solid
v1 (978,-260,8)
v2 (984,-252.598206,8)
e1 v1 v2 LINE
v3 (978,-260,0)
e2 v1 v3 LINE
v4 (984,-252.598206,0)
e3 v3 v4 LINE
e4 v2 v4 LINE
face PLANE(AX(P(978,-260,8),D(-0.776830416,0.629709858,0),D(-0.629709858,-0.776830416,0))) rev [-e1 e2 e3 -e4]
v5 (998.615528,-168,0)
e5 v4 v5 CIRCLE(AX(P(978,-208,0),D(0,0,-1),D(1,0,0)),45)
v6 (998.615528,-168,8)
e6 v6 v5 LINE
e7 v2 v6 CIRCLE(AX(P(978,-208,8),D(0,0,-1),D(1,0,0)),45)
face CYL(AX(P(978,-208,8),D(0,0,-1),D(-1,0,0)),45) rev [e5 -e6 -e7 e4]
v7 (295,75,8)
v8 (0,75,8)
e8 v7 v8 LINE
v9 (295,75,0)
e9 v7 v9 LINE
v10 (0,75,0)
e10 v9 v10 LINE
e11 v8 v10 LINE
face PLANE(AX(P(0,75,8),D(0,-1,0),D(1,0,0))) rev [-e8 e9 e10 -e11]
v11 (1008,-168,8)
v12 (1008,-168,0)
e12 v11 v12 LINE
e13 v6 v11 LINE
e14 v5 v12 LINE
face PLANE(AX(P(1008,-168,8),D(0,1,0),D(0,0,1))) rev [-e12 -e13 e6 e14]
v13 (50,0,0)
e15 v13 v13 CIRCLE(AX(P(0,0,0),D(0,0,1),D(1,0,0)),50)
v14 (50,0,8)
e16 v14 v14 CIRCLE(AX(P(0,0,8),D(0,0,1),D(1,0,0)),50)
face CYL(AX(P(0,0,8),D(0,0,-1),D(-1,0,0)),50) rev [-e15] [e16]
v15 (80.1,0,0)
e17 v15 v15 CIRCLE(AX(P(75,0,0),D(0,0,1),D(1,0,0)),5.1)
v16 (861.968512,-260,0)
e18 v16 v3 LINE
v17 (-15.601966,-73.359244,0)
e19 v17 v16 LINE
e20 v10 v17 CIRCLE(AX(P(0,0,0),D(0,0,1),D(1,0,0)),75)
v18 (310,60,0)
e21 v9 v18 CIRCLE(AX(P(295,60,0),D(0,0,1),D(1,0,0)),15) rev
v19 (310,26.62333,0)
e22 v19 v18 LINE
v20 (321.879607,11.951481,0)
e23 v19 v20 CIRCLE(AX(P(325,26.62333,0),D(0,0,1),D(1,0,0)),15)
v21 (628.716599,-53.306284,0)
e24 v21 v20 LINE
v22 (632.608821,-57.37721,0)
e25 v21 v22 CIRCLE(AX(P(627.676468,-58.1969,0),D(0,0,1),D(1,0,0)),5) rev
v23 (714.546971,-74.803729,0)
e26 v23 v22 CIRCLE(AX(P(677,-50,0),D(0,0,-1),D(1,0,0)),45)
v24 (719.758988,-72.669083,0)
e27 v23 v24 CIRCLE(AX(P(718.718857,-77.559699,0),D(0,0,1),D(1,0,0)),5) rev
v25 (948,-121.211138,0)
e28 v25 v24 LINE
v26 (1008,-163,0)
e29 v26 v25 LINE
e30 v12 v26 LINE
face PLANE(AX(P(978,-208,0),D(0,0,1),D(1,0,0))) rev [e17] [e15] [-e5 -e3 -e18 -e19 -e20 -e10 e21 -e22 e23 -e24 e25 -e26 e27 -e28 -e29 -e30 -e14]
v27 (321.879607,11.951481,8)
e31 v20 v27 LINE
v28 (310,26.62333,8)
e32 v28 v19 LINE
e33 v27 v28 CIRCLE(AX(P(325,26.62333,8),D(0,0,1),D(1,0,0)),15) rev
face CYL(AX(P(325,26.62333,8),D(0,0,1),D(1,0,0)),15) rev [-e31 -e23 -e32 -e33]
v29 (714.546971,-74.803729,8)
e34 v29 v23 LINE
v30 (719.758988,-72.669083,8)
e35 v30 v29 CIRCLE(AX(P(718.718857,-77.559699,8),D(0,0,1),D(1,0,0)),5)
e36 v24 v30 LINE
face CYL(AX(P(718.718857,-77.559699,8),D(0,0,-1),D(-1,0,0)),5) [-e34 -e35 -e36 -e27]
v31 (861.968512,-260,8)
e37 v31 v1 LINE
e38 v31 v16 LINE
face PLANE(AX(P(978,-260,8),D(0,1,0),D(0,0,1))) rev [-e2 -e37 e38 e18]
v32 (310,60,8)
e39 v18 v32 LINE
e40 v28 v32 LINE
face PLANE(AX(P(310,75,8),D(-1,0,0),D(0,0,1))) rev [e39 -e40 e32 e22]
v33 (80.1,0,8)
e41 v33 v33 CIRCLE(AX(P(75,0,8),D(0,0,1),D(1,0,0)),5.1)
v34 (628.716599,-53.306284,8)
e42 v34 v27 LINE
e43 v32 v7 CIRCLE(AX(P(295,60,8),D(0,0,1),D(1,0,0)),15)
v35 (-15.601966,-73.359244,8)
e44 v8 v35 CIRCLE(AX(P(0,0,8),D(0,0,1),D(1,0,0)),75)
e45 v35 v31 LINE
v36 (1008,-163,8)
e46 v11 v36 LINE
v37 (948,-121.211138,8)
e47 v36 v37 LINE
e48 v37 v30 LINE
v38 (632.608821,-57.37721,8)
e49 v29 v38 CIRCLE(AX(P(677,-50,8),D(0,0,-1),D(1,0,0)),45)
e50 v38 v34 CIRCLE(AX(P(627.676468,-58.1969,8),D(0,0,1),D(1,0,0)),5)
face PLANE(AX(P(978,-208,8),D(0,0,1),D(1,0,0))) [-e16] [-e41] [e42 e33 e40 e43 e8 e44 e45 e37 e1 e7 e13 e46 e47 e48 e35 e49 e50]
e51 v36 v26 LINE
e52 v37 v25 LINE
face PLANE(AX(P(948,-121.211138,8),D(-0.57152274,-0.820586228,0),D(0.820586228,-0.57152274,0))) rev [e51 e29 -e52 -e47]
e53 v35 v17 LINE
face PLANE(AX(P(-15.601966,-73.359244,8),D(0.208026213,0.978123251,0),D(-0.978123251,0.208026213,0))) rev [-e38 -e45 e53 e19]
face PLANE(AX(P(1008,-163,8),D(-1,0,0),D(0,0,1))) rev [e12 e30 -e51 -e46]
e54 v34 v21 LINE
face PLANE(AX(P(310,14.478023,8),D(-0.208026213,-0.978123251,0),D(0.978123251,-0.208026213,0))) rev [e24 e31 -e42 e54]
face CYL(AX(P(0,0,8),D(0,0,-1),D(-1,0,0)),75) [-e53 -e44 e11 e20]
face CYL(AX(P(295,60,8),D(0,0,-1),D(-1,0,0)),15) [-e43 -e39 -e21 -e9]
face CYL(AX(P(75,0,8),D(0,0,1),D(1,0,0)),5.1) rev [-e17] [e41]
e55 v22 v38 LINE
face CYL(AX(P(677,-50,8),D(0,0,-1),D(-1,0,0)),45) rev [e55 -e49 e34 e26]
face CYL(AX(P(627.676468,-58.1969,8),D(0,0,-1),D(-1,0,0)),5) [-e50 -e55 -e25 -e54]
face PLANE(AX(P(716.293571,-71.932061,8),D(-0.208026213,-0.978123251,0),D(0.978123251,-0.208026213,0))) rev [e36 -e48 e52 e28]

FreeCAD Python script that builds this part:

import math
import FreeCAD as App
import Part
import Sketcher

V = App.Vector
Q = App.Units.Quantity


def edges_at(feature, points):
    """Names of the edges that pass closest to the given points."""
    edges = feature.Shape.Edges
    near = lambda p: min(range(len(edges)), key=lambda i: edges[i].distToShape(Part.Vertex(*p))[0])
    return sorted({f"Edge{near(p) + 1}" for p in points})

doc = App.newDocument("Part")
body = doc.addObject("PartDesign::Body", "Body")

sketch1 = body.newObject("Sketcher::SketchObject", "Sketch")
sketch1.AttachmentSupport = (doc.getObject("XY_Plane"), [""])
sketch1.MapMode = "FlatFace"
sketch1.addGeometry([
    Part.LineSegment(V(310, 75, 0), V(0, 75, 0)),
    Part.ArcOfCircle(Part.Circle(V(0, 0, 0), V(0, 0, 1), 75), math.radians(90), math.radians(257.993292)),
    Part.LineSegment(V(-15.601966, -73.359244, 0), V(861.968512, -260, 0)),
    Part.LineSegment(V(861.968512, -260, 0), V(978, -260, 0)),
    Part.LineSegment(V(978, -260, 0), V(984, -252.598206, 0)),
    Part.ArcOfCircle(Part.Circle(V(978, -208, 0), V(0, 0, 1), 45), math.radians(62.733956), math.radians(277.662256)),
    Part.LineSegment(V(998.615528, -168, 0), V(1008, -168, 0)),
    Part.LineSegment(V(1008, -168, 0), V(1008, -163, 0)),
    Part.LineSegment(V(1008, -163, 0), V(948, -121.211138, 0)),
    Part.LineSegment(V(948, -121.211138, 0), V(716.293571, -71.932061, 0)),
    Part.ArcOfCircle(Part.Circle(V(677, -50, 0), V(0, 0, 1), 45), math.radians(-174.844951), math.radians(-29.168465)),
    Part.LineSegment(V(632.182016, -54.043305, 0), V(310, 14.478023, 0)),
    Part.LineSegment(V(310, 14.478023, 0), V(310, 75, 0)),
    Part.Circle(V(0, 0, 0), V(0, 0, 1), 50),
], False)
sketch1.addConstraint([
    Sketcher.Constraint("Tangent", 0, 2, 1, 1),
    Sketcher.Constraint("Tangent", 1, 2, 2, 1),
    Sketcher.Constraint("Coincident", 2, 2, 3, 1),
    Sketcher.Constraint("Coincident", 3, 2, 4, 1),
    Sketcher.Constraint("Coincident", 4, 2, 5, 2),
    Sketcher.Constraint("Coincident", 5, 1, 6, 1),
    Sketcher.Constraint("Coincident", 6, 2, 7, 1),
    Sketcher.Constraint("Coincident", 7, 2, 8, 1),
    Sketcher.Constraint("Coincident", 8, 2, 9, 1),
    Sketcher.Constraint("Coincident", 9, 2, 10, 2),
    Sketcher.Constraint("Coincident", 10, 1, 11, 1),
    Sketcher.Constraint("Coincident", 11, 2, 12, 1),
    Sketcher.Constraint("Coincident", 12, 2, 0, 1),
    Sketcher.Constraint("Horizontal", 0),
    Sketcher.Constraint("Horizontal", 3),
    Sketcher.Constraint("Horizontal", 6),
    Sketcher.Constraint("Vertical", 7),
    Sketcher.Constraint("Vertical", 12),
    Sketcher.Constraint("Coincident", 1, 3, -1, 1),
    Sketcher.Constraint("Coincident", 13, 3, -1, 1),
    Sketcher.Constraint("Equal", 5, 10),
    Sketcher.Constraint("Parallel", 2, 9),
    Sketcher.Constraint("Parallel", 9, 11),
    Sketcher.Constraint("Vertical", 5, 3, 3, 2),
    Sketcher.Constraint("Diameter", 13, Q("100 mm")),
    Sketcher.Constraint("Radius", 1, Q("75 mm")),
    Sketcher.Constraint("Radius", 5, Q("45 mm")),
    Sketcher.Constraint("DistanceX", 0, 2, 0, 1, Q("310 mm")),
    Sketcher.Constraint("DistanceY", 7, 1, 7, 2, Q("5 mm")),
    Sketcher.Constraint("DistanceX", -1, 1, 5, 3, Q("978 mm")),
    Sketcher.Constraint("DistanceY", 5, 3, -1, 1, Q("208 mm")),
    Sketcher.Constraint("DistanceX", -1, 1, 10, 3, Q("677 mm")),
    Sketcher.Constraint("DistanceY", 10, 3, -1, 1, Q("50 mm")),
    Sketcher.Constraint("DistanceY", 2, 2, -1, 1, Q("260 mm")),
    Sketcher.Constraint("DistanceX", -1, 1, 4, 2, Q("984 mm")),
    Sketcher.Constraint("DistanceY", 5, 1, -1, 1, Q("168 mm")),
    Sketcher.Constraint("DistanceX", -1, 1, 6, 2, Q("1008 mm")),
    Sketcher.Constraint("DistanceX", -1, 1, 8, 2, Q("948 mm")),
    Sketcher.Constraint("Distance", 2, Q("897.198259 mm")),
    Sketcher.Constraint("Distance", 8, Q("73.118458 mm")),
    Sketcher.Constraint("DistanceY", 12, 1, 12, 2, Q("60.521977 mm")),
])
pad1 = body.newObject("PartDesign::Pad", "Pad")
pad1.Profile = sketch1
pad1.Length = 8
doc.recompute()

fillet = body.newObject("PartDesign::Fillet", "Fillet")
fillet.Base = (pad1, edges_at(pad1, [(310, 75, 4), (310, 14.478, 4)]))
fillet.Radius = 15

sketch2 = body.newObject("Sketcher::SketchObject", "Sketch001")
sketch2.AttachmentSupport = (doc.getObject("XY_Plane"), [""])
sketch2.MapMode = "FlatFace"
sketch2.AttachmentOffset = App.Placement(V(0, 0, 8), App.Rotation())
sketch2.addGeometry(Part.Circle(V(75, 0, 0), V(0, 0, 1), 5.1), False)
sketch2.addConstraint([
    Sketcher.Constraint("PointOnObject", 0, 3, -1),
    Sketcher.Constraint("Diameter", 0, Q("10.2 mm")),
    Sketcher.Constraint("DistanceX", -1, 1, 0, 3, Q("75 mm")),
])
doc.recompute()
hole = body.newObject("PartDesign::Hole", "Hole")
hole.Profile = sketch2
hole.ThreadType = "None"
hole.Diameter = 10.2
hole.DepthType = "ThroughAll"
doc.recompute()

fillet2 = body.newObject("PartDesign::Fillet", "Fillet001")
fillet2.Base = (hole, edges_at(hole, [(632.182, -54.043, 4), (716.294, -71.932, 4)]))
fillet2.Radius = 5

doc.recompute()
